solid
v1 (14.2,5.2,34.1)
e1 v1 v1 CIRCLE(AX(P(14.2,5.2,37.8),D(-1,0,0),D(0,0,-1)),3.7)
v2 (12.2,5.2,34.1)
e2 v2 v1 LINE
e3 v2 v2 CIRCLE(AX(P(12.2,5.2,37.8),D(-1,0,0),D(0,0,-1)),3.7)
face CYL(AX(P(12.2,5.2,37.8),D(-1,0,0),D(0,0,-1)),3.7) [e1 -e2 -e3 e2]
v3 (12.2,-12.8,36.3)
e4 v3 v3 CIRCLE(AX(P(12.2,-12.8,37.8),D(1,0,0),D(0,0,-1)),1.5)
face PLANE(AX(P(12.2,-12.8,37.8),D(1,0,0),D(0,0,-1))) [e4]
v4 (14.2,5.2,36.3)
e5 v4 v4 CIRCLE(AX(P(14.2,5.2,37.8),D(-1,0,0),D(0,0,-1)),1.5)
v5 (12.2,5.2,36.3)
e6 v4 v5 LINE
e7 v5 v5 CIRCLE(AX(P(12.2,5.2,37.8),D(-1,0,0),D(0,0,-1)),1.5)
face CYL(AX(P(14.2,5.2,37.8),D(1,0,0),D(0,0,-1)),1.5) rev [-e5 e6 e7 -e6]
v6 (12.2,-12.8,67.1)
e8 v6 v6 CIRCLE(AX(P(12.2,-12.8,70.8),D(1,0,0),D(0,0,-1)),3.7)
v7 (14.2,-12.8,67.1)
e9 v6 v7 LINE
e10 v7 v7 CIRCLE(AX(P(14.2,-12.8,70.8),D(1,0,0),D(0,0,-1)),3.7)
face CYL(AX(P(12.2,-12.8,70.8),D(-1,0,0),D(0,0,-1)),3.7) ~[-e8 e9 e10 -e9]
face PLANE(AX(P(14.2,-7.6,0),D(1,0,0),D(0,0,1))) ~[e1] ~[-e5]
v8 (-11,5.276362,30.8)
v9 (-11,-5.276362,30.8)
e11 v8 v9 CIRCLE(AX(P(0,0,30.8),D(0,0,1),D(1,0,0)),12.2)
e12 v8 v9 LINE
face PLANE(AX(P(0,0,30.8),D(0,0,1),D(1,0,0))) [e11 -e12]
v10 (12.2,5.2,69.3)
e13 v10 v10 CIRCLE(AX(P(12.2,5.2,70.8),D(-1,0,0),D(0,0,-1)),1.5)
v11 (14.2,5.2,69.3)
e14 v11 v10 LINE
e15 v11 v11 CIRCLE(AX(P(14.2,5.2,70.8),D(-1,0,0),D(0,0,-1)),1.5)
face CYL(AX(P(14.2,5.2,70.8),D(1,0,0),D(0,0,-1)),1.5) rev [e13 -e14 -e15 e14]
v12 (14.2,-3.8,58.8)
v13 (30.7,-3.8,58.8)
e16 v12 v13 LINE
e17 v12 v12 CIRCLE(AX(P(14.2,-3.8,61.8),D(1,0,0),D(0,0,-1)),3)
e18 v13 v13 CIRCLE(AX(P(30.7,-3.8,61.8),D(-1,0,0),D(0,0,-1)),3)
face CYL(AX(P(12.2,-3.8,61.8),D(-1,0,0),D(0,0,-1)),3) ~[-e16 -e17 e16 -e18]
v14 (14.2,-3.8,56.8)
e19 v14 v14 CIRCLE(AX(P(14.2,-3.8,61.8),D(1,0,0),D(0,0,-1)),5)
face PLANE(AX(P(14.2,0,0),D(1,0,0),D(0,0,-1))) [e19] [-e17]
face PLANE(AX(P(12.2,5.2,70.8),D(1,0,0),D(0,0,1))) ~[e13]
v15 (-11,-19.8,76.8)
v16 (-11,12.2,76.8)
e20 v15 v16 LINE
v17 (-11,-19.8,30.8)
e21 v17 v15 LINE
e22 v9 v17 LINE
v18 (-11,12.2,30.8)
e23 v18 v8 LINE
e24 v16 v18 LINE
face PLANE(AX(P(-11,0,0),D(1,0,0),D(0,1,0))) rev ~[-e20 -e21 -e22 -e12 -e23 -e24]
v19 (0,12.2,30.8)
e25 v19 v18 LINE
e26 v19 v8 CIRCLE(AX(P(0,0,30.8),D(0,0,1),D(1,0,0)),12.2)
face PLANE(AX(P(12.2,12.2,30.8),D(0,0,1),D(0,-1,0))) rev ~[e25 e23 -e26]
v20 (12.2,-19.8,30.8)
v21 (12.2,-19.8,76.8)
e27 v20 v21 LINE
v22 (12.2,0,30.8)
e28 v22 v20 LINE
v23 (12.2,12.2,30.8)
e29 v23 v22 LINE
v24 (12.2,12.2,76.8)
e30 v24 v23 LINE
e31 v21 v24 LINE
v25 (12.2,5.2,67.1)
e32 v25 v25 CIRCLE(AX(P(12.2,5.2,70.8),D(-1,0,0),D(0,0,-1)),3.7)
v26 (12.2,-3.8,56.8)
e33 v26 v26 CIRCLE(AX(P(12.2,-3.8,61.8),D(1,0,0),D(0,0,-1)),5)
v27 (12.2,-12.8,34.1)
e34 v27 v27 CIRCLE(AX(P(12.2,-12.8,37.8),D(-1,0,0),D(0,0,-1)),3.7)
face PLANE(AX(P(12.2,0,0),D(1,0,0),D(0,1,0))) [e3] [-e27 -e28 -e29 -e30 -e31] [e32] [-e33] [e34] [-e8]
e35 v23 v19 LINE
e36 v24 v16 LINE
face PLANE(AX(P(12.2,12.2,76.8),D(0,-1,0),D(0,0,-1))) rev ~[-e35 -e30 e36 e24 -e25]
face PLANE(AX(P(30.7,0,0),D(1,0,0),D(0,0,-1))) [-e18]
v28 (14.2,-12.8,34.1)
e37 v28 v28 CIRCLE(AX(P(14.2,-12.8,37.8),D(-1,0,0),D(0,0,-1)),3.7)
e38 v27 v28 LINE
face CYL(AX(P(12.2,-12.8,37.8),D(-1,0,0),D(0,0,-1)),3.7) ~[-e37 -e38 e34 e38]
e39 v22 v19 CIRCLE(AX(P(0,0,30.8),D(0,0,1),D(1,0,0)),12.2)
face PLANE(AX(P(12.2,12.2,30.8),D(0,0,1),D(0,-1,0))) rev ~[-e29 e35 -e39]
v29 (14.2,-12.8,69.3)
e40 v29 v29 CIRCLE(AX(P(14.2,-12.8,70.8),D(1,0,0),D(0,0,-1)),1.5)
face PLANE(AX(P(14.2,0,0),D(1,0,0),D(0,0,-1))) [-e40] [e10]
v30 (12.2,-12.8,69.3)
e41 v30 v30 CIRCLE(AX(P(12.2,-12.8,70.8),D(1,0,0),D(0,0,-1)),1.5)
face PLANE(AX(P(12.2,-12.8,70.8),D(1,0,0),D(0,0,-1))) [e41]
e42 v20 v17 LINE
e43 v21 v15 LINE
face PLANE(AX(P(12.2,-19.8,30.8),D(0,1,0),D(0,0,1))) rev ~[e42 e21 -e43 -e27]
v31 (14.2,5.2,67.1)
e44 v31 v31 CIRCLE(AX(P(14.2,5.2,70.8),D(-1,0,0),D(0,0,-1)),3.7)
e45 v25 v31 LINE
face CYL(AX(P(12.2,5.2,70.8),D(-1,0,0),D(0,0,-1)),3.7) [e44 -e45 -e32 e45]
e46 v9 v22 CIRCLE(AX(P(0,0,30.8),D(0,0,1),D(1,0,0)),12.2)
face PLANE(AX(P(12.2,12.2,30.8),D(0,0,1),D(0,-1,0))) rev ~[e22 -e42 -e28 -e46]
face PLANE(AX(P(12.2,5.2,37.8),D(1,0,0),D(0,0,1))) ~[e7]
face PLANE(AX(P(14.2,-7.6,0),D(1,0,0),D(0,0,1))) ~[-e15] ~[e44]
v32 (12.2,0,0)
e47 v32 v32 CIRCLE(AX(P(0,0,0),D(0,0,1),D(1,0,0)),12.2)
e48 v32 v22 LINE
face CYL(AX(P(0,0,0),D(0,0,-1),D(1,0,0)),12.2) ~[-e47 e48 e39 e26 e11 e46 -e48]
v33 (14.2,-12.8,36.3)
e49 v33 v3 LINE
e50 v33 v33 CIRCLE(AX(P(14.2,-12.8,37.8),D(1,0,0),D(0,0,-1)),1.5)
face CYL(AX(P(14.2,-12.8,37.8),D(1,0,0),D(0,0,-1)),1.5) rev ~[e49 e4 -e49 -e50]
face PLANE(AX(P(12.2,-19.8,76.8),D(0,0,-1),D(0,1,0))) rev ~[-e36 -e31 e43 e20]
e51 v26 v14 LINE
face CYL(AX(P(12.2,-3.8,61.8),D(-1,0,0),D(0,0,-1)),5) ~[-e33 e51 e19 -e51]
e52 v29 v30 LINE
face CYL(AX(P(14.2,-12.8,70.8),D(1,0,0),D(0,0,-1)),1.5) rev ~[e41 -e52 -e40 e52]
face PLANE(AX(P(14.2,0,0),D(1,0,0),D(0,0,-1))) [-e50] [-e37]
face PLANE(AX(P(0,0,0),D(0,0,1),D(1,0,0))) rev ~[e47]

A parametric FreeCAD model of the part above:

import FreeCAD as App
import Part
import Sketcher
from FreeCAD import Vector


def add_polygon(sketch, points):
    """Adds a closed chain of lines whose ends are joined by coincident constraints."""
    first, n = sketch.GeometryCount, len(points)
    for a, b in zip(points, points[1:] + points[:1]):
        sketch.addGeometry(Part.LineSegment(App.Vector(*a, 0), App.Vector(*b, 0)), False)
    for i in range(n):
        sketch.addConstraint(Sketcher.Constraint("Coincident", first + i, 2, first + (i + 1) % n, 1))

doc = App.newDocument("Part")
body = doc.addObject("PartDesign::Body", "Body")

sketch1 = body.newObject("Sketcher::SketchObject", "Sketch")
sketch1.AttachmentSupport = (doc.getObject("XY_Plane"), [""])
sketch1.MapMode = "FlatFace"
sketch1.addGeometry(Part.Circle(Vector(0, 0, 0), Vector(0, 0, 1), 12), False)
sketch1.addConstraint([
    Sketcher.Constraint("Coincident", 0, 3, -1, 1),
    Sketcher.Constraint("Diameter", 0, 24.4),
])
pad1 = body.newObject("PartDesign::Pad", "Pad")
pad1.Profile = sketch1
pad1.Length = 30.8

sketch2 = body.newObject("Sketcher::SketchObject", "Sketch001")
sketch2.AttachmentSupport = (doc.getObject("YZ_Plane"), [""])
sketch2.MapMode = "FlatFace"
sketch2.AttachmentOffset = App.Placement(Vector(0, 0, 12.2), App.Rotation())
add_polygon(sketch2, [(-20, 31), (12, 31), (12, 77), (-20, 77)])
sketch2.addConstraint([
    Sketcher.Constraint("Horizontal", 0),
    Sketcher.Constraint("Vertical", 1),
    Sketcher.Constraint("Horizontal", 2),
    Sketcher.Constraint("Vertical", 3),
    Sketcher.Constraint("DistanceX", 0, 1, 0, 2, 32.0),
    Sketcher.Constraint("DistanceY", 1, 1, 1, 2, 46.0),
    Sketcher.Constraint("DistanceX", -1, 1, 0, 2, 12.2),
    Sketcher.Constraint("DistanceY", -1, 1, 0, 2, 30.8),
])
pad2 = body.newObject("PartDesign::Pad", "Pad001")
pad2.Profile = sketch2
pad2.Length = 23.2
pad2.Reversed = True

sketch3 = body.newObject("Sketcher::SketchObject", "Sketch002")
sketch3.AttachmentSupport = (doc.getObject("YZ_Plane"), [""])
sketch3.MapMode = "FlatFace"
sketch3.AttachmentOffset = App.Placement(Vector(0, 0, 12.2), App.Rotation())
sketch3.addGeometry(Part.Circle(Vector(-12.8, 70.8, 0), Vector(0, 0, 1), 3.7), False)
sketch3.addConstraint([
    Sketcher.Constraint("Diameter", 0, 7.4),
    Sketcher.Constraint("DistanceX", 0, 3, -1, 1, 12.8),
    Sketcher.Constraint("DistanceY", -1, 1, 0, 3, 70.8),
])
pad3 = body.newObject("PartDesign::Pad", "Pad002")
pad3.Profile = sketch3
pad3.Length = 2
doc.recompute()

datumplane = body.newObject("PartDesign::Plane", "DatumPlane")
datumplane.AttachmentSupport = (doc.getObject("XZ_Plane"), [""])
datumplane.MapMode = "FlatFace"
datumplane.AttachmentOffset = App.Placement(Vector(0, 0, 3.8), App.Rotation())
mirrored = body.newObject("PartDesign::Mirrored", "Mirrored")
mirrored.Originals = [pad3]
mirrored.MirrorPlane = (datumplane, [""])
body.Tip = mirrored

sketch4 = body.newObject("Sketcher::SketchObject", "Sketch003")
sketch4.AttachmentSupport = (doc.getObject("YZ_Plane"), [""])
sketch4.MapMode = "FlatFace"
sketch4.AttachmentOffset = App.Placement(Vector(0, 0, 12.2), App.Rotation())
sketch4.addGeometry(Part.Circle(Vector(-12.8, 37.8, 0), Vector(0, 0, 1), 3.7), False)
sketch4.addConstraint([
    Sketcher.Constraint("Diameter", 0, 7.4),
    Sketcher.Constraint("DistanceX", 0, 3, -1, 1, 12.8),
    Sketcher.Constraint("DistanceY", -1, 1, 0, 3, 37.8),
])
pad4 = body.newObject("PartDesign::Pad", "Pad003")
pad4.Profile = sketch4
pad4.Length = 2
doc.recompute()

datumplane2 = body.newObject("PartDesign::Plane", "DatumPlane001")
datumplane2.AttachmentSupport = (doc.getObject("XZ_Plane"), [""])
datumplane2.MapMode = "FlatFace"
datumplane2.AttachmentOffset = App.Placement(Vector(0, 0, 3.8), App.Rotation())
mirrored2 = body.newObject("PartDesign::Mirrored", "Mirrored001")
mirrored2.Originals = [pad4]
mirrored2.MirrorPlane = (datumplane2, [""])
body.Tip = mirrored2

sketch5 = body.newObject("Sketcher::SketchObject", "Sketch004")
sketch5.AttachmentSupport = (doc.getObject("YZ_Plane"), [""])
sketch5.MapMode = "FlatFace"
sketch5.AttachmentOffset = App.Placement(Vector(0, 0, 12.2), App.Rotation())
sketch5.addGeometry(Part.Circle(Vector(-3.8, 61.8, 0), Vector(0, 0, 1), 3), False)
sketch5.addConstraint([
    Sketcher.Constraint("Diameter", 0, 6.0),
    Sketcher.Constraint("DistanceX", 0, 3, -1, 1, 3.8),
    Sketcher.Constraint("DistanceY", -1, 1, 0, 3, 61.8),
])
pad5 = body.newObject("PartDesign::Pad", "Pad004")
pad5.Profile = sketch5
pad5.Length = 18.5

sketch6 = body.newObject("Sketcher::SketchObject", "Sketch005")
sketch6.AttachmentSupport = (doc.getObject("YZ_Plane"), [""])
sketch6.MapMode = "FlatFace"
sketch6.AttachmentOffset = App.Placement(Vector(0, 0, 14.2), App.Rotation())
sketch6.addGeometry(Part.Circle(Vector(-12.8, 70.8, 0), Vector(0, 0, 1), 1.5), False)
sketch6.addConstraint([
    Sketcher.Constraint("Diameter", 0, 3.0),
    Sketcher.Constraint("DistanceX", 0, 3, -1, 1, 12.8),
    Sketcher.Constraint("DistanceY", -1, 1, 0, 3, 70.8),
])
pocket1 = body.newObject("PartDesign::Pocket", "Pocket")
pocket1.Profile = sketch6
pocket1.Length = 2
doc.recompute()

datumplane3 = body.newObject("PartDesign::Plane", "DatumPlane002")
datumplane3.AttachmentSupport = (doc.getObject("XZ_Plane"), [""])
datumplane3.MapMode = "FlatFace"
datumplane3.AttachmentOffset = App.Placement(Vector(0, 0, 3.8), App.Rotation())
mirrored3 = body.newObject("PartDesign::Mirrored", "Mirrored002")
mirrored3.Originals = [pocket1]
mirrored3.MirrorPlane = (datumplane3, [""])
body.Tip = mirrored3

sketch7 = body.newObject("Sketcher::SketchObject", "Sketch006")
sketch7.AttachmentSupport = (doc.getObject("YZ_Plane"), [""])
sketch7.MapMode = "FlatFace"
sketch7.AttachmentOffset = App.Placement(Vector(0, 0, 14.2), App.Rotation())
sketch7.addGeometry(Part.Circle(Vector(-12.8, 37.8, 0), Vector(0, 0, 1), 1.5), False)
sketch7.addConstraint([
    Sketcher.Constraint("Diameter", 0, 3.0),
    Sketcher.Constraint("DistanceX", 0, 3, -1, 1, 12.8),
    Sketcher.Constraint("DistanceY", -1, 1, 0, 3, 37.8),
])
pocket2 = body.newObject("PartDesign::Pocket", "Pocket001")
pocket2.Profile = sketch7
pocket2.Length = 2
doc.recompute()

datumplane4 = body.newObject("PartDesign::Plane", "DatumPlane003")
datumplane4.AttachmentSupport = (doc.getObject("XZ_Plane"), [""])
datumplane4.MapMode = "FlatFace"
datumplane4.AttachmentOffset = App.Placement(Vector(0, 0, 3.8), App.Rotation())
mirrored4 = body.newObject("PartDesign::Mirrored", "Mirrored003")
mirrored4.Originals = [pocket2]
mirrored4.MirrorPlane = (datumplane4, [""])
body.Tip = mirrored4

sketch8 = body.newObject("Sketcher::SketchObject", "Sketch007")
sketch8.AttachmentSupport = (doc.getObject("YZ_Plane"), [""])
sketch8.MapMode = "FlatFace"
sketch8.AttachmentOffset = App.Placement(Vector(0, 0, 12.2), App.Rotation())
sketch8.addGeometry([
    Part.Circle(Vector(-3.8, 61.8, 0), Vector(0, 0, 1), 5),
    Part.Circle(Vector(-3.8, 61.8, 0), Vector(0, 0, 1), 3),
], False)
sketch8.addConstraint([
    Sketcher.Constraint("Coincident", 1, 3, 0, 3),
    Sketcher.Constraint("Diameter", 0, 10.0),
    Sketcher.Constraint("Diameter", 1, 6.0),
    Sketcher.Constraint("DistanceX", 0, 3, -1, 1, 3.8),
    Sketcher.Constraint("DistanceY", -1, 1, 0, 3, 61.8),
])
pad6 = body.newObject("PartDesign::Pad", "Pad005")
pad6.Profile = sketch8
pad6.Length = 2

doc.recompute()
